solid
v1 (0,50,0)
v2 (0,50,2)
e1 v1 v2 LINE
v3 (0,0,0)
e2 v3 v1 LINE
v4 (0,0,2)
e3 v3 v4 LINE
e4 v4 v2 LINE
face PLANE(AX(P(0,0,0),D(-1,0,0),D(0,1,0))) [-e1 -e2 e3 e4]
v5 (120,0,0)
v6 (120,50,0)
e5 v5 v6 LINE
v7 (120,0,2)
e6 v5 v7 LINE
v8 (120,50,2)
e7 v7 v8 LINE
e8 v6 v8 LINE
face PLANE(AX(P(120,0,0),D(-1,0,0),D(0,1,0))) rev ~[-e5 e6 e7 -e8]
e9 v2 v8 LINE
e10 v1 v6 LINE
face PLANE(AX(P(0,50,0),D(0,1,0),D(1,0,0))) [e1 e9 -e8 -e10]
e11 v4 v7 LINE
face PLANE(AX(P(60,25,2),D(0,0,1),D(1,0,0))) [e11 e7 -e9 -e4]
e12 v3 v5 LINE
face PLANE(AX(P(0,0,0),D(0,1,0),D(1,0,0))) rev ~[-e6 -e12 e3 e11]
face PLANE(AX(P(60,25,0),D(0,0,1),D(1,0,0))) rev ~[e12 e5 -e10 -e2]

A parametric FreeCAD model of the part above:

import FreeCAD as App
import Part
import Sketcher
from FreeCAD import Vector

doc = App.newDocument("Part")
body = doc.addObject("PartDesign::Body", "Body")

sketch1 = doc.addObject("Sketcher::SketchObject", "Sketch")
body.addObject(sketch1)
sketch1.AttachmentSupport = (doc.XY_Plane, [""])
sketch1.MapMode = "FlatFace"
sketch1.addGeometry([
    Part.LineSegment(Vector(0, 50, 0), Vector(0, 0, 0)),
    Part.LineSegment(Vector(0, 0, 0), Vector(120, 0, 0)),
    Part.LineSegment(Vector(120, 0, 0), Vector(120, 50, 0)),
    Part.LineSegment(Vector(120, 50, 0), Vector(0, 50, 0)),
], False)
sketch1.addConstraint([
    Sketcher.Constraint("Coincident", 0, 2, 1, 1),
    Sketcher.Constraint("Coincident", 1, 2, 2, 1),
    Sketcher.Constraint("Coincident", 2, 2, 3, 1),
    Sketcher.Constraint("Coincident", 3, 2, 0, 1),
    Sketcher.Constraint("Vertical", 0),
    Sketcher.Constraint("Horizontal", 1),
    Sketcher.Constraint("Vertical", 2),
    Sketcher.Constraint("Horizontal", 3),
    Sketcher.Constraint("Coincident", 0, 2, -1, 1),
    Sketcher.Constraint("DistanceX", 1, 1, 1, 2, 120.0),
    Sketcher.Constraint("DistanceY", 0, 2, 0, 1, 50.0),
])
pad1 = doc.addObject("PartDesign::Pad", "Pad")
body.addObject(pad1)
pad1.Profile = sketch1
pad1.Length = 2

doc.recompute()
